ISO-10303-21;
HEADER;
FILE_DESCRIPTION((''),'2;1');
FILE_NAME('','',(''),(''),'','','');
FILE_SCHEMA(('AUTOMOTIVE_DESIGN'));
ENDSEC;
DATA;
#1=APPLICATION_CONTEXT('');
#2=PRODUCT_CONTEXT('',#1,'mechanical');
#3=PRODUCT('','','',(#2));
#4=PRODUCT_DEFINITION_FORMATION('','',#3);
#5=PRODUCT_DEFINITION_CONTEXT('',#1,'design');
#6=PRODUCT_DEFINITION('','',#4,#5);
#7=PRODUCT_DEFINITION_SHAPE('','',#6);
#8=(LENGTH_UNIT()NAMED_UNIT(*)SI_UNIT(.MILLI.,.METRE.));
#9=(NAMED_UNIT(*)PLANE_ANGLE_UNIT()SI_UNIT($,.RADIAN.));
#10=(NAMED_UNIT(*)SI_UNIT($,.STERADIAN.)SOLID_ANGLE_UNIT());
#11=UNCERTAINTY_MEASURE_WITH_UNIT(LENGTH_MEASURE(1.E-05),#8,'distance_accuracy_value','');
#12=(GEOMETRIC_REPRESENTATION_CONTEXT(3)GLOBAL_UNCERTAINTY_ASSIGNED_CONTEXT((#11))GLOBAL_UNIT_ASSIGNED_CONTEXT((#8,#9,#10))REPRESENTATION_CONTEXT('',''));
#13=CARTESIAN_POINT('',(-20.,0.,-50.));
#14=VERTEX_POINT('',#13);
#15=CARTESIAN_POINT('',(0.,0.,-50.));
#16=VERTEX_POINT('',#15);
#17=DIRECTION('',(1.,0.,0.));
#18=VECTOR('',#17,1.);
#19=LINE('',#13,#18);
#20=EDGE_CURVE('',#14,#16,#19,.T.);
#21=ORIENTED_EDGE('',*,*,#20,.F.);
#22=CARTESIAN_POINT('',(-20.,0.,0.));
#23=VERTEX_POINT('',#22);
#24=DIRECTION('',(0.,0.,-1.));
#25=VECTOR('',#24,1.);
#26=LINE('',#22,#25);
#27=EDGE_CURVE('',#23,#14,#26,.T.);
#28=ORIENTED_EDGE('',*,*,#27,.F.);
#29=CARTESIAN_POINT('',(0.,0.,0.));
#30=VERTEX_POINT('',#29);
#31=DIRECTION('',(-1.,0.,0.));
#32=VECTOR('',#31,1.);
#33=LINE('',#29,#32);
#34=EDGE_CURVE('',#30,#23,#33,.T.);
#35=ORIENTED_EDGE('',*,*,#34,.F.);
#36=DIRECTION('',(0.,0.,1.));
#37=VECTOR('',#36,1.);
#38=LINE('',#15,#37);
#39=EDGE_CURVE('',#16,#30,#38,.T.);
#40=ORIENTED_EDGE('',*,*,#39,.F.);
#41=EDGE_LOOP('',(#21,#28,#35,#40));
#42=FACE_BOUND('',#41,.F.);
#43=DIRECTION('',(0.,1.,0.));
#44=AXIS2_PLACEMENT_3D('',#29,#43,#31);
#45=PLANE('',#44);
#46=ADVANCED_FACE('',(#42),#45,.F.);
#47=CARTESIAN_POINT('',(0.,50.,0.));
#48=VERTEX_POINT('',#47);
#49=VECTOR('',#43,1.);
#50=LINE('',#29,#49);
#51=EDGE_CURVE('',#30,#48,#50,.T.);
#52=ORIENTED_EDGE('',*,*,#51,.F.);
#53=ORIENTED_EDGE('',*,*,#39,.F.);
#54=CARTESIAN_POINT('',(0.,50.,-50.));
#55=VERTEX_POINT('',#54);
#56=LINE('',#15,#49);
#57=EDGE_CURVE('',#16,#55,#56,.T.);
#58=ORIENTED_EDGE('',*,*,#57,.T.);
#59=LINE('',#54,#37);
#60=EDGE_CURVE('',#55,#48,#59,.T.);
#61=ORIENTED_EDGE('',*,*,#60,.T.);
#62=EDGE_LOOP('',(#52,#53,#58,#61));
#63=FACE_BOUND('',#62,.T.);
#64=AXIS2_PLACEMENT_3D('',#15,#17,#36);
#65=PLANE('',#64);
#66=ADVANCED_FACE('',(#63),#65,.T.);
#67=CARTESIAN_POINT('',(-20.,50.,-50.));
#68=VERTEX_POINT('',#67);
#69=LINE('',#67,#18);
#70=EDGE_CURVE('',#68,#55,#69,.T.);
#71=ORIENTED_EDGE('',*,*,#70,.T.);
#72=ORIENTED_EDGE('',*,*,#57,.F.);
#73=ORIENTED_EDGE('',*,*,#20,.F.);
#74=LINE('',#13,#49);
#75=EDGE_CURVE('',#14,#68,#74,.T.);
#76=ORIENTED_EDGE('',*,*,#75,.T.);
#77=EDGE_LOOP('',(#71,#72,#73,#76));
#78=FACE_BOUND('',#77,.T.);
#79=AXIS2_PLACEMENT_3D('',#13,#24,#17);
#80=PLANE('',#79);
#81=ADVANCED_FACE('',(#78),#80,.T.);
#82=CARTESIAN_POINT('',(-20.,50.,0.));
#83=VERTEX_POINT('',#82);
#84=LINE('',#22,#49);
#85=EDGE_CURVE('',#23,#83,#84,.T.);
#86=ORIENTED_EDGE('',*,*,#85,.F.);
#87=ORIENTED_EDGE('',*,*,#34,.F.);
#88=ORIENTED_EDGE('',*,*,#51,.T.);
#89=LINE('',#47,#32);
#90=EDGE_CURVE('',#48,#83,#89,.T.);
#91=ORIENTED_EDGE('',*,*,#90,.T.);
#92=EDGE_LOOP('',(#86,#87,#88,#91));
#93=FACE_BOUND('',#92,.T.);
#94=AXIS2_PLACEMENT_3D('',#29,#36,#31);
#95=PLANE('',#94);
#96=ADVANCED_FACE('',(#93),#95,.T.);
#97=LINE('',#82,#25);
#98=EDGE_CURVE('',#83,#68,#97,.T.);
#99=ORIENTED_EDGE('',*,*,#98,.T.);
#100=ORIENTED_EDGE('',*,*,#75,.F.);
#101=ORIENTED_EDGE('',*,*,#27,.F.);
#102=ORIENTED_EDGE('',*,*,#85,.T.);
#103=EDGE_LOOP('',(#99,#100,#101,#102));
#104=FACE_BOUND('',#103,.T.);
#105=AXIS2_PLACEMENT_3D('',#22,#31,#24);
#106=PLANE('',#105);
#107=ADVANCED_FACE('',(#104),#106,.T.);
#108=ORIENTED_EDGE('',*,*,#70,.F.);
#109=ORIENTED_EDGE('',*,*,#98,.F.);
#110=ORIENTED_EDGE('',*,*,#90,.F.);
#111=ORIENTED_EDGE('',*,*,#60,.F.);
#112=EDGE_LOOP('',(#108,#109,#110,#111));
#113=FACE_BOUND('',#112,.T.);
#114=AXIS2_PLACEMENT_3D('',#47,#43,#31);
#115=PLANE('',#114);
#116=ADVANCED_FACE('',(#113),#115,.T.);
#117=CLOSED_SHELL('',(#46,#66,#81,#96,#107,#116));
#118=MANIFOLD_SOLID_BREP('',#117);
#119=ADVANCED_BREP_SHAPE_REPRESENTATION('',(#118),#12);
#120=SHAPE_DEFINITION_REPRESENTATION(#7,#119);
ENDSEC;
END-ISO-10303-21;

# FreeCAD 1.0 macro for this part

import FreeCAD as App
import Part
import Sketcher

V = App.Vector

doc = App.newDocument("Part")
params = doc.addObject("Spreadsheet::Sheet", "Params")
for row, (alias, value) in enumerate([
    ("sketch1_width", "20 mm"),
    ("sketch1_height", "50 mm"),
    ("pad1_length", "50 mm"),
], start=1):
    params.set(f"A{row}", alias)
    params.set(f"B{row}", "=" + value)
    params.setAlias(f"B{row}", alias)

body = doc.addObject("PartDesign::Body", "Body")

sketch1 = body.newObject("Sketcher::SketchObject", "Sketch")
sketch1.AttachmentSupport = (doc.getObject("XZ_Plane"), [""])
sketch1.MapMode = "FlatFace"
sketch1.addGeometry([
    Part.LineSegment(V(-20, 0, 0), V(0, 0, 0)),
    Part.LineSegment(V(0, 0, 0), V(0, -50, 0)),
    Part.LineSegment(V(0, -50, 0), V(-20, -50, 0)),
    Part.LineSegment(V(-20, -50, 0), V(-20, 0, 0)),
], False)
sketch1.addConstraint([
    Sketcher.Constraint("Coincident", 0, 2, 1, 1),
    Sketcher.Constraint("Coincident", 1, 2, 2, 1),
    Sketcher.Constraint("Coincident", 2, 2, 3, 1),
    Sketcher.Constraint("Coincident", 3, 2, 0, 1),
    Sketcher.Constraint("Horizontal", 0),
    Sketcher.Constraint("Vertical", 1),
    Sketcher.Constraint("Horizontal", 2),
    Sketcher.Constraint("Vertical", 3),
    Sketcher.Constraint("Coincident", 0, 2, -1, 1),
    Sketcher.Constraint("DistanceX", 0, 1, 0, 2, 20.0),
    Sketcher.Constraint("DistanceY", 1, 2, 1, 1, 50.0),
])
sketch1.setExpression("Constraints[9]", "Params.sketch1_width")
sketch1.setExpression("Constraints[10]", "Params.sketch1_height")
pad1 = body.newObject("PartDesign::Pad", "Pad")
pad1.Profile = sketch1
pad1.setExpression("Length", "Params.pad1_length")
pad1.Reversed = True

doc.recompute()
